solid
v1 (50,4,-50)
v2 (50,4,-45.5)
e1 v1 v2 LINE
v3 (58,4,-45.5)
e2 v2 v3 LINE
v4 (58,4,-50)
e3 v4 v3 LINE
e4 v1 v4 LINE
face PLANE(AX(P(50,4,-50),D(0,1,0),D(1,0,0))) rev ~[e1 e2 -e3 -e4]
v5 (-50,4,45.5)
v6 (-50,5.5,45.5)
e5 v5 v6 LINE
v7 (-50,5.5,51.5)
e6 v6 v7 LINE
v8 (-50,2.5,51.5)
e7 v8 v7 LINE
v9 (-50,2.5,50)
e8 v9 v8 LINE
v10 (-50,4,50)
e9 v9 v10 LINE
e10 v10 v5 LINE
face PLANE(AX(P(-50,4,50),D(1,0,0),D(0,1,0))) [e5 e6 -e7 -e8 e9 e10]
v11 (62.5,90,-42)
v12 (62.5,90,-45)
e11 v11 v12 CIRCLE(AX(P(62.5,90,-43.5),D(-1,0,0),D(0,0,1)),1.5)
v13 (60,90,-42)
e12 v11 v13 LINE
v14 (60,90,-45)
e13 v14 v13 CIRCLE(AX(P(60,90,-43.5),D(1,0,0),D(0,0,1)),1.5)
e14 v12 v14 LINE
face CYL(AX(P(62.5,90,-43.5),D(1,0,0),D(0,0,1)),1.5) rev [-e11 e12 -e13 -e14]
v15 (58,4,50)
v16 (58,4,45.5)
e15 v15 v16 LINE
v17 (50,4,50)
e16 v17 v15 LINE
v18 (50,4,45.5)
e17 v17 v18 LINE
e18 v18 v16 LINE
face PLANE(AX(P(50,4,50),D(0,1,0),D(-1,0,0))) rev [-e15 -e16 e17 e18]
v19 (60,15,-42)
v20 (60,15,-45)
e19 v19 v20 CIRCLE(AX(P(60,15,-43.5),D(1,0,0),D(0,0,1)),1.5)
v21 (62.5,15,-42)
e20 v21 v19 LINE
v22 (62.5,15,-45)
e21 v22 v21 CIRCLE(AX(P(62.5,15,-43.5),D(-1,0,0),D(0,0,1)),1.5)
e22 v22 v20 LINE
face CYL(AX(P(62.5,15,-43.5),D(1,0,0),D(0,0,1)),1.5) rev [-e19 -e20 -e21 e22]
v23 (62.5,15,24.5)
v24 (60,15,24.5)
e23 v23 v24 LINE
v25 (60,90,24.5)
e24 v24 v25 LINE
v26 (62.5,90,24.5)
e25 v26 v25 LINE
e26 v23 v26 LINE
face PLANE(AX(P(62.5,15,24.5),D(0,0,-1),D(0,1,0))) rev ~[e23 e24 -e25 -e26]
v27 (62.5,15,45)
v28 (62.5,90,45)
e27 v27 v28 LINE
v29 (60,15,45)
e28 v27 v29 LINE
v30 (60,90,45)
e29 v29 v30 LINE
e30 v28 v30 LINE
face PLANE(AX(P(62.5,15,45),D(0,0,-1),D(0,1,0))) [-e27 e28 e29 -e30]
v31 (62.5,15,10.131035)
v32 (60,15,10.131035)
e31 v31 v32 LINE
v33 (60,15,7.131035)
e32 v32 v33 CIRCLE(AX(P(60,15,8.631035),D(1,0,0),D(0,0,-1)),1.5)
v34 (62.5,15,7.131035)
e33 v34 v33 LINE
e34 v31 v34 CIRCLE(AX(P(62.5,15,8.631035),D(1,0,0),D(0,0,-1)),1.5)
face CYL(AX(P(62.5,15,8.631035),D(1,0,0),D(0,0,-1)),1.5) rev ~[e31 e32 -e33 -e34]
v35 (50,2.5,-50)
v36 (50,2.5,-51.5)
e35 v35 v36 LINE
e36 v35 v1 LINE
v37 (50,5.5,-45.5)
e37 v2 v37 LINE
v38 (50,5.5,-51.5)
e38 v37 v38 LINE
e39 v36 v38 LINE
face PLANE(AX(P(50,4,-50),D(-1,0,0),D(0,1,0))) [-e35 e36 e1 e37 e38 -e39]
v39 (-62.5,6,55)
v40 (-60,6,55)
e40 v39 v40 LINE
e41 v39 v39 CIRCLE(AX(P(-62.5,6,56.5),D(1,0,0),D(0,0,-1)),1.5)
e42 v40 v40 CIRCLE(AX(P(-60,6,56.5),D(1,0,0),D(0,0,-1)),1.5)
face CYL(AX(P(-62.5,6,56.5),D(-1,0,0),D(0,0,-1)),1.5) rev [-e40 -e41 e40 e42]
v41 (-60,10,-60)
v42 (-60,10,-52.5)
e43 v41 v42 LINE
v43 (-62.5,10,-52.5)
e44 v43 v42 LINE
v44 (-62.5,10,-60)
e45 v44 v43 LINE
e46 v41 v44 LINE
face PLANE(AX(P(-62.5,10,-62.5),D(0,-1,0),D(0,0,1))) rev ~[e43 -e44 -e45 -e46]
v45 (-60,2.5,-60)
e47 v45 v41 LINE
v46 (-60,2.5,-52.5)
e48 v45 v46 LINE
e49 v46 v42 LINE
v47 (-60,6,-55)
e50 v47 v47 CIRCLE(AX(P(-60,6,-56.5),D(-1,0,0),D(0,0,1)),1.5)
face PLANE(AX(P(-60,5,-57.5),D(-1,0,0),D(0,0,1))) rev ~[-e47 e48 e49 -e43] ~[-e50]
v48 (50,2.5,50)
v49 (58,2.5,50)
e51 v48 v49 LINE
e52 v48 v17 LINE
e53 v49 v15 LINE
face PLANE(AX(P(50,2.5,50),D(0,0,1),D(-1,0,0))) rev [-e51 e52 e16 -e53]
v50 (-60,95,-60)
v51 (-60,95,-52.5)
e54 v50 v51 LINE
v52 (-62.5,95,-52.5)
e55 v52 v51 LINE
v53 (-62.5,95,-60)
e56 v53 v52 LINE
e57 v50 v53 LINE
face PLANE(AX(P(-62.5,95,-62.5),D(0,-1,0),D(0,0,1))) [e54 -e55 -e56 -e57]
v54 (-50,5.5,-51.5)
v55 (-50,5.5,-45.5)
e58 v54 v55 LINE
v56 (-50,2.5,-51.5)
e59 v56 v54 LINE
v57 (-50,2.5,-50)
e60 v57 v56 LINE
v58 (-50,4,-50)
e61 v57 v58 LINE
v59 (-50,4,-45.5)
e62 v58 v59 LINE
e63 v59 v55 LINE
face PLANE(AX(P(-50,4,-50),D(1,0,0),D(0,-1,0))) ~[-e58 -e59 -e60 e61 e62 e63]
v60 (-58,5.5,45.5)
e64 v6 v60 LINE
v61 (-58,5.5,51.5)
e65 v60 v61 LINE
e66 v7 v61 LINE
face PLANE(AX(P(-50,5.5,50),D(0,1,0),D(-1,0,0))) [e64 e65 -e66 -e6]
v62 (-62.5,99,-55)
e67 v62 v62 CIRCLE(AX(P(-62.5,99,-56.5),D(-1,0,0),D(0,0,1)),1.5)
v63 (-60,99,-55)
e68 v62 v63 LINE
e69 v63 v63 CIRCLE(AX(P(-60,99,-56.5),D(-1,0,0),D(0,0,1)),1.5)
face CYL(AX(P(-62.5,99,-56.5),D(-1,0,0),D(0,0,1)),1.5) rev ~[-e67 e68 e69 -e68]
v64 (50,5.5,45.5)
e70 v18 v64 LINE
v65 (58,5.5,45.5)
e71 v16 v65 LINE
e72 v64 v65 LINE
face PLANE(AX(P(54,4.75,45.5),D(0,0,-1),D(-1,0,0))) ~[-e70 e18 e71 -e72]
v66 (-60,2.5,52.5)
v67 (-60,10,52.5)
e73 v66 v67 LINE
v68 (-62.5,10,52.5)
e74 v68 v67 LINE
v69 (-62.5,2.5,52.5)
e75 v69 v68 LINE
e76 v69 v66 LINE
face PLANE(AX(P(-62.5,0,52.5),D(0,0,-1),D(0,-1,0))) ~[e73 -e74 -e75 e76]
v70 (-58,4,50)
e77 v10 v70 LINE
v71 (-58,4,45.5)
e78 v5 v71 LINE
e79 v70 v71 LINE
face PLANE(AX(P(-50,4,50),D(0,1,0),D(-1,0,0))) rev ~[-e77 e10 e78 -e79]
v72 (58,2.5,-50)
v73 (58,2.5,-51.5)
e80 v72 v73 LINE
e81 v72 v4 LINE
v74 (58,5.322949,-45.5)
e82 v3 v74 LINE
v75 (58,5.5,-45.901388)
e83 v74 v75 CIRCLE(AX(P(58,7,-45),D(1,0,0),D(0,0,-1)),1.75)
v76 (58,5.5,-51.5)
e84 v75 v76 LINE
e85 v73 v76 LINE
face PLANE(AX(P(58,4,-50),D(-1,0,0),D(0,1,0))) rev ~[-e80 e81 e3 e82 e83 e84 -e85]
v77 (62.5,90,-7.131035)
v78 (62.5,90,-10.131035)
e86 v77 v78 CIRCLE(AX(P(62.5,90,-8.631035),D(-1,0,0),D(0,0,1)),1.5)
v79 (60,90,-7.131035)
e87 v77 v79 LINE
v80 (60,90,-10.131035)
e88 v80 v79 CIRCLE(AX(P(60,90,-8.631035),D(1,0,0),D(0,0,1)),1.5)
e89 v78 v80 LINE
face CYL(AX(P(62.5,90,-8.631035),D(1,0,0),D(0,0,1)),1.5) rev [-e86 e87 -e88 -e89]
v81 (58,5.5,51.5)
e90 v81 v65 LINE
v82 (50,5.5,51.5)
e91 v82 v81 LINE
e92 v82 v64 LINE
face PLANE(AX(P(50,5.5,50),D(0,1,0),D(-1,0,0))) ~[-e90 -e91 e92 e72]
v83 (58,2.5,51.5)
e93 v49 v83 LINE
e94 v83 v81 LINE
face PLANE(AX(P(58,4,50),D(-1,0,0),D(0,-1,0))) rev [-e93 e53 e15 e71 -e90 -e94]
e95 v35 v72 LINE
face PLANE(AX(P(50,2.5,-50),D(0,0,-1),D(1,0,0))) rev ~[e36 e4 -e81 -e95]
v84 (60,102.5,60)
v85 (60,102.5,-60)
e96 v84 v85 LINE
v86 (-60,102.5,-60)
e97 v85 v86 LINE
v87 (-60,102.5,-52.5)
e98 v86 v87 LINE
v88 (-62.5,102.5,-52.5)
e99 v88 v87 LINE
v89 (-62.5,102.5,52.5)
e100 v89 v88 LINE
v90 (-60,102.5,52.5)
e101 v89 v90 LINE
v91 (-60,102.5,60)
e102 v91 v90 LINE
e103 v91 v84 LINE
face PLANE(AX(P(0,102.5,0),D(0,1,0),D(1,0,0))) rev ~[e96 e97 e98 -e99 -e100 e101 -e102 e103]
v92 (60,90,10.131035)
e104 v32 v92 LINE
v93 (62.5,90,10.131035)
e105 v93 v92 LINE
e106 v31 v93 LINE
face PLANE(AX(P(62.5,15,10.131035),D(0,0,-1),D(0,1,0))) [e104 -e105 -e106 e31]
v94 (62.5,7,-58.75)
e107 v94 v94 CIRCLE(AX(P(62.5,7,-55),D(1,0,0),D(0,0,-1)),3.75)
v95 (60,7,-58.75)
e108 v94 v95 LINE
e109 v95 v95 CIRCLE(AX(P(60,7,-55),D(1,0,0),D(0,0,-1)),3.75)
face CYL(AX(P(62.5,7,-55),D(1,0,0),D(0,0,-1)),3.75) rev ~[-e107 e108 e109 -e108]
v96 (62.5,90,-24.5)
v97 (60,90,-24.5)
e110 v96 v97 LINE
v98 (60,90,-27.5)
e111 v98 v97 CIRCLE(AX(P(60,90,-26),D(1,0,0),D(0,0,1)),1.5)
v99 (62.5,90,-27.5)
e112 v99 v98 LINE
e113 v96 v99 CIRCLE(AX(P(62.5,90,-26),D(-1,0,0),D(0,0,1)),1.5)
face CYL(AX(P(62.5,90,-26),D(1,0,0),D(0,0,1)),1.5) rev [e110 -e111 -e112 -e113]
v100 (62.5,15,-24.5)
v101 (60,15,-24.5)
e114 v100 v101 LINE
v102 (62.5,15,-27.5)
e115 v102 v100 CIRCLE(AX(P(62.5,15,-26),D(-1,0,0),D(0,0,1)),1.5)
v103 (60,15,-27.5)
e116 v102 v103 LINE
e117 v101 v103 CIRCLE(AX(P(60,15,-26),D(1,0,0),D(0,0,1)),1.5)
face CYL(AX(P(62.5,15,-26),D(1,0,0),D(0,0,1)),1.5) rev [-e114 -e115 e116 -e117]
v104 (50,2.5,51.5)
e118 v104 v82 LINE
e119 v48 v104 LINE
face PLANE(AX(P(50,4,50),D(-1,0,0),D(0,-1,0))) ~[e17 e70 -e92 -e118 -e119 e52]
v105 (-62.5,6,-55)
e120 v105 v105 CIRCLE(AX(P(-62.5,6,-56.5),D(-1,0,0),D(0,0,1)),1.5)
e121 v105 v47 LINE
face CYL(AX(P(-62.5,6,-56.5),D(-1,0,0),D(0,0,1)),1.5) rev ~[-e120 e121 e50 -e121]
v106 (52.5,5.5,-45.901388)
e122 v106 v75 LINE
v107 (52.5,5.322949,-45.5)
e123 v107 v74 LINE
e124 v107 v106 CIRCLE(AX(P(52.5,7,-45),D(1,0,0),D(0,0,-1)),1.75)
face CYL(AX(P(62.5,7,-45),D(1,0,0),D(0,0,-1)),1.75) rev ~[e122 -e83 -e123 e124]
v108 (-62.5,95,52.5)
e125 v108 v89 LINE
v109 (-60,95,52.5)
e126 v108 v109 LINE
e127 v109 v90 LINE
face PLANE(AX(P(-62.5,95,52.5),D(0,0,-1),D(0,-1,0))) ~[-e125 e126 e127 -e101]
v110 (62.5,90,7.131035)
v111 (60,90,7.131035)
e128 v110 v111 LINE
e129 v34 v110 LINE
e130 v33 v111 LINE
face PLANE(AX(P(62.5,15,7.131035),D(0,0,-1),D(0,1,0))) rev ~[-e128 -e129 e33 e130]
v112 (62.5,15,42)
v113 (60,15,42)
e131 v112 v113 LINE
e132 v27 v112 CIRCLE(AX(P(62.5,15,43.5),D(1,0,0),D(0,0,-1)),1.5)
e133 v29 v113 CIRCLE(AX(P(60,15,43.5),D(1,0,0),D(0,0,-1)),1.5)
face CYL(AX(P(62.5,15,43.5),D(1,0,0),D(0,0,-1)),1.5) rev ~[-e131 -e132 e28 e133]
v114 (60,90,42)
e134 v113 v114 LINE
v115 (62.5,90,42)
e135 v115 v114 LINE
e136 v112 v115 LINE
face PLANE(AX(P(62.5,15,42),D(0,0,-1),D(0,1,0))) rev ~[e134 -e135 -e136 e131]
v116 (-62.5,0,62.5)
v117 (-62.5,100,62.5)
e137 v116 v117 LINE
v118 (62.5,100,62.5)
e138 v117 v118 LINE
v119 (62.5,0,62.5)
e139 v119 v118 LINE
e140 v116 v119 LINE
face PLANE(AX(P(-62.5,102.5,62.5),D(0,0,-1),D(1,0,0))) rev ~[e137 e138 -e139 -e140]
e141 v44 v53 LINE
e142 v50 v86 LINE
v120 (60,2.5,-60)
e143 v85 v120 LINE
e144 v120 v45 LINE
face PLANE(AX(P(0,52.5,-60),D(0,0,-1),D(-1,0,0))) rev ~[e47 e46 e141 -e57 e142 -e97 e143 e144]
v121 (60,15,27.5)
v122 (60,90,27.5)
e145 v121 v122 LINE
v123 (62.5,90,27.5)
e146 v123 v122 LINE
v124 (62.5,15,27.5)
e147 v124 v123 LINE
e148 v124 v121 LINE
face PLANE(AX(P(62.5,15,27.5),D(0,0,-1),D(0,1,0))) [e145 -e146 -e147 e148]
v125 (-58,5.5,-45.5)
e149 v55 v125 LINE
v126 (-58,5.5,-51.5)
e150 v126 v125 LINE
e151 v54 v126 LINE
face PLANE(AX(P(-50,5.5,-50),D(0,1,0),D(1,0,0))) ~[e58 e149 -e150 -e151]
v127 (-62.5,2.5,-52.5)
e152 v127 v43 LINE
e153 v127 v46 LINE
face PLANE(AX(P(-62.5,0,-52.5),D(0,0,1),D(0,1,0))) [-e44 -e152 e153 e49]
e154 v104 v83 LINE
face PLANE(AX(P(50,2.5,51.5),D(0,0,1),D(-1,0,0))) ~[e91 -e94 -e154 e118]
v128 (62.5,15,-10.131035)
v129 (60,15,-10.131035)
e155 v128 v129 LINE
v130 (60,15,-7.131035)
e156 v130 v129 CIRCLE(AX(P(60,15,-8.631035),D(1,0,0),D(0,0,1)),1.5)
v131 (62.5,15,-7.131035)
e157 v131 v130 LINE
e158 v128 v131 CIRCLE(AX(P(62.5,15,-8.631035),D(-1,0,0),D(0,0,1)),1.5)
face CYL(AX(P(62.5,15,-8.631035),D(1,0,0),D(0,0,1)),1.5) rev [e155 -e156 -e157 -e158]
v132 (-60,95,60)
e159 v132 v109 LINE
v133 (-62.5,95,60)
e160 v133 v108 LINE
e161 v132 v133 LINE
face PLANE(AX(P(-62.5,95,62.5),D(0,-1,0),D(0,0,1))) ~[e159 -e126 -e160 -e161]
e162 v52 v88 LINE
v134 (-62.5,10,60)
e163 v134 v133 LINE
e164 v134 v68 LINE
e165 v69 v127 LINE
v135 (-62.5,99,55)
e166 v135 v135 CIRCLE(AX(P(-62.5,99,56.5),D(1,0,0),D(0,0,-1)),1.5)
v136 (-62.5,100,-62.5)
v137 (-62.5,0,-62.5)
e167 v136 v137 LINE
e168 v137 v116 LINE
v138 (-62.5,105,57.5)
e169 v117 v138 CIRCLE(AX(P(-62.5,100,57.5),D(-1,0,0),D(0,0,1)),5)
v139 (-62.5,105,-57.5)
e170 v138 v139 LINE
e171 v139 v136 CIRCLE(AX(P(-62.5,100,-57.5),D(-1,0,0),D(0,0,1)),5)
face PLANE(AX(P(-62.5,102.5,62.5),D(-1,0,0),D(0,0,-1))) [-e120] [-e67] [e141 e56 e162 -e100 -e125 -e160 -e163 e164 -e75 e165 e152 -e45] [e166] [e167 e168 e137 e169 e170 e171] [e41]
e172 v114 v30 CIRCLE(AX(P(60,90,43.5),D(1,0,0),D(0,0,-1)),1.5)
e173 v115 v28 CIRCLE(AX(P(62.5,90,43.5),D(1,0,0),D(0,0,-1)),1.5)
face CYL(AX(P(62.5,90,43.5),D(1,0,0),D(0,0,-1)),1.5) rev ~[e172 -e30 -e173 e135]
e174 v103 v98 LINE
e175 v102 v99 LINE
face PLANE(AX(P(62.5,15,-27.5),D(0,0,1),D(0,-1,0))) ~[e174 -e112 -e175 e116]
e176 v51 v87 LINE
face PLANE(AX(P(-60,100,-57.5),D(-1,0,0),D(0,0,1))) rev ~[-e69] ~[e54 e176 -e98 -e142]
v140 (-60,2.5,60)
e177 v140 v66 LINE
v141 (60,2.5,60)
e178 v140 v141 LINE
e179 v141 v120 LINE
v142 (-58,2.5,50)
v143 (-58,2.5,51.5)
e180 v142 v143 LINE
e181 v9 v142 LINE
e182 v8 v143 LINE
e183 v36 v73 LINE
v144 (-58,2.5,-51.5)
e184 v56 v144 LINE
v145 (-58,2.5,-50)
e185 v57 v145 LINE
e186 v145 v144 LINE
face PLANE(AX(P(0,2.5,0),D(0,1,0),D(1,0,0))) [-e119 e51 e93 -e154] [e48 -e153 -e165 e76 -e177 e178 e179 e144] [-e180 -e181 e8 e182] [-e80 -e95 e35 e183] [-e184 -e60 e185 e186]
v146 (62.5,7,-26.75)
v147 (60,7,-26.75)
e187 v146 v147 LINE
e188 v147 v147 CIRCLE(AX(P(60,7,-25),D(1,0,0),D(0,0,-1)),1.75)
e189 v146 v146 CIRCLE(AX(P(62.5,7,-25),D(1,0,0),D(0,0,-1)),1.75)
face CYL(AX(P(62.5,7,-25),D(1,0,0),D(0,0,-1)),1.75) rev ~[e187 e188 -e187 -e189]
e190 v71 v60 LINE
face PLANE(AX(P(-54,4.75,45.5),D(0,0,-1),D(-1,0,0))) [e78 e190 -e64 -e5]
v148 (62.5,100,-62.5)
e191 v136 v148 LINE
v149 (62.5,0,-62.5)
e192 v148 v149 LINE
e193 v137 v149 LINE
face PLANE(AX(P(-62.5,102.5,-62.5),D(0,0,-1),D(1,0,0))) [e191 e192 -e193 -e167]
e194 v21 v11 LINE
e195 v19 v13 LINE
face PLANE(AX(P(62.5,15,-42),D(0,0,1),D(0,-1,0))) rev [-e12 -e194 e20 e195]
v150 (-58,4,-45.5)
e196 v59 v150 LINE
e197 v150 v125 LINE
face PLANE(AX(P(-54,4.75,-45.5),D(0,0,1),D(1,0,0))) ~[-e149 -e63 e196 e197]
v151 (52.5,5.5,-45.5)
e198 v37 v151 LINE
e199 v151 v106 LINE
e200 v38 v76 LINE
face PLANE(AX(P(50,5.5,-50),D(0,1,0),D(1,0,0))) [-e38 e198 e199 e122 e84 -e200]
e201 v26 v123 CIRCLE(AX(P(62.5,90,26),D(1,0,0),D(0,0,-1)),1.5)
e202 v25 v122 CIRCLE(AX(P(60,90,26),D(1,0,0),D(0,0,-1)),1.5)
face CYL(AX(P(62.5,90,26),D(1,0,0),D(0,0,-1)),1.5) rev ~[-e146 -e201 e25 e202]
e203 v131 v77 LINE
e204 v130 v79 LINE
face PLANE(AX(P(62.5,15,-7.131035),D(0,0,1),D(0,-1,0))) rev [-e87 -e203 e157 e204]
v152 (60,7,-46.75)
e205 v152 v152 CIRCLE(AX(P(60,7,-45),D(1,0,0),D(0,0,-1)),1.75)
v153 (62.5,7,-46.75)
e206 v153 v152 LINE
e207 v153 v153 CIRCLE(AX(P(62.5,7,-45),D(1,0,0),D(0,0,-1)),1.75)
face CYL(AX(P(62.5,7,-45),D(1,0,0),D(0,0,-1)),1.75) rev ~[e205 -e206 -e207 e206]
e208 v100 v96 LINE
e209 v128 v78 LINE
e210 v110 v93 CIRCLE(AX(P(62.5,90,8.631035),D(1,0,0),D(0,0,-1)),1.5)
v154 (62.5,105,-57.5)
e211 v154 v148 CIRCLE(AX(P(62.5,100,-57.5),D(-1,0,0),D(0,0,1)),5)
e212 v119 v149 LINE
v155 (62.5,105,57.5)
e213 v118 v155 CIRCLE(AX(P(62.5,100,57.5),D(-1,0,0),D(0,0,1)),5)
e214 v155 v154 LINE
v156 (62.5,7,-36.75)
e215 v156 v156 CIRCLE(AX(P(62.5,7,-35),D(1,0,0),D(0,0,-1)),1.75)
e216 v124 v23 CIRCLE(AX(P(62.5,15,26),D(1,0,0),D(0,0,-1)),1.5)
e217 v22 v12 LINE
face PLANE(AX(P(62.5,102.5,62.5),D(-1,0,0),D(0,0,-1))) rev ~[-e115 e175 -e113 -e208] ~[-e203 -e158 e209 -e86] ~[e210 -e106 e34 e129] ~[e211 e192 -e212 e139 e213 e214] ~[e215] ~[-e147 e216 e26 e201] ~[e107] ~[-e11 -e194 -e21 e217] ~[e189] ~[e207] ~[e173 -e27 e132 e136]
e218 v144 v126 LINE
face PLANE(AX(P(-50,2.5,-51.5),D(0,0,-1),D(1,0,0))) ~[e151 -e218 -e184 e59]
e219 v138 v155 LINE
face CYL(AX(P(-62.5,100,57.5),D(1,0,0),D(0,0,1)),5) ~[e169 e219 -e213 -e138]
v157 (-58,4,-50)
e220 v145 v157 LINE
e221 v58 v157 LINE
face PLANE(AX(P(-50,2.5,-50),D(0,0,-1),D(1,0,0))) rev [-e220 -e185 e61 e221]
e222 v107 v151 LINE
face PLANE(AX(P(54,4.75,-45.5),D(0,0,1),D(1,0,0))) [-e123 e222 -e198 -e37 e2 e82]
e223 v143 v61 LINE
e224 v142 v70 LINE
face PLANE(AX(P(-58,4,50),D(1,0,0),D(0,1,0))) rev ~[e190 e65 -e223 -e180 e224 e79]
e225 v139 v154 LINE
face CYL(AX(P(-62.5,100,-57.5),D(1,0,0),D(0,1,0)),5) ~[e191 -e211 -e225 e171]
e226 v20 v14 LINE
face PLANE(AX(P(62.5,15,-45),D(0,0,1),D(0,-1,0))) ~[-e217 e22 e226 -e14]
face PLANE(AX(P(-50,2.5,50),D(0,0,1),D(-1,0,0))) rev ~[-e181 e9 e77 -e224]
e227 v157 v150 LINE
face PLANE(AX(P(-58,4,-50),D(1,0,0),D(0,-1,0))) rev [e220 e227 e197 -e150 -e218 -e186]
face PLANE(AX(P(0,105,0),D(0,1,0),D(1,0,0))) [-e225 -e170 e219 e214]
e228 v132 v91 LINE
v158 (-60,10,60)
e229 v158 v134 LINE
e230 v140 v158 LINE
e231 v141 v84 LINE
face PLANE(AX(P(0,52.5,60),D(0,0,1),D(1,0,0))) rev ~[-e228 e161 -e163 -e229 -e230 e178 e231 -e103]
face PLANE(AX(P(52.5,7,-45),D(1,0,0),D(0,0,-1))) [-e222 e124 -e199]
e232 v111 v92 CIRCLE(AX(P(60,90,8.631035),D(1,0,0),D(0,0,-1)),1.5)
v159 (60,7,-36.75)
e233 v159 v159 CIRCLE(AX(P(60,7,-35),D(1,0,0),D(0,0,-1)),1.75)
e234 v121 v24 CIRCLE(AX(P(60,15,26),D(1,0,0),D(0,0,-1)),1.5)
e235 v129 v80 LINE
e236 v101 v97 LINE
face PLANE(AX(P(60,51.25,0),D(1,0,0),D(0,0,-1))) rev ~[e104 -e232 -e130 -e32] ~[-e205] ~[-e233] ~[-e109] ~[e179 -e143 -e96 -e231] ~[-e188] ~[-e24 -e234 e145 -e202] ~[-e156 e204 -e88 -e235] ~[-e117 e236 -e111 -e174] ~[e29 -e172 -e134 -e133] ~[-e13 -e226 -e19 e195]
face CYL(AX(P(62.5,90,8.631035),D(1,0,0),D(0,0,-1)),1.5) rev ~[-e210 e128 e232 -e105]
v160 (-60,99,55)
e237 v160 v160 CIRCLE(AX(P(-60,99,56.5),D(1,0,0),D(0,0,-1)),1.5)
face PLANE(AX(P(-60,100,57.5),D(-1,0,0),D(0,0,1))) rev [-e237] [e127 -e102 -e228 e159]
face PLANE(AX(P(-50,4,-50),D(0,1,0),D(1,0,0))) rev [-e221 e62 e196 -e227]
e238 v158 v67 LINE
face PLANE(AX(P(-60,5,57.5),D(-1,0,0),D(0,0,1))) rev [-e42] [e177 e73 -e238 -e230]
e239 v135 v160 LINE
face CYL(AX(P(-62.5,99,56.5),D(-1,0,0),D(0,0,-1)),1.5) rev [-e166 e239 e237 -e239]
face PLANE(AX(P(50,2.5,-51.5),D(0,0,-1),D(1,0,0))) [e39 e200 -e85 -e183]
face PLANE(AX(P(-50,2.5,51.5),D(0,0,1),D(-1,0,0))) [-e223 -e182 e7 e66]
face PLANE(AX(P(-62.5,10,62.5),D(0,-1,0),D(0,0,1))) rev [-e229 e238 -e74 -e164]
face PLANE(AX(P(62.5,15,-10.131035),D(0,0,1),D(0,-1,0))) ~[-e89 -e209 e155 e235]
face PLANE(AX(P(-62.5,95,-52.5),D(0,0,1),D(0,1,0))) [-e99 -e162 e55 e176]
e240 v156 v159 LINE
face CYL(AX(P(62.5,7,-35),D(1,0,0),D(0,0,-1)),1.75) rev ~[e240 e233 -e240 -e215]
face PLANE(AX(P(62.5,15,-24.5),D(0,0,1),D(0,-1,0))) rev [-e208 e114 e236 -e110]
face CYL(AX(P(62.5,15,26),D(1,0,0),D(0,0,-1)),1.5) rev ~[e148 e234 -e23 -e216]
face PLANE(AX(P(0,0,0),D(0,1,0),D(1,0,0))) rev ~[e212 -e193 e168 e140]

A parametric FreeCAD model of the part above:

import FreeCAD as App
import Part
import Sketcher
from FreeCAD import Vector
Q = App.Units.Quantity


def edges_at(feature, points):
    """Names of the edges that pass closest to the given points."""
    edges = feature.Shape.Edges
    near = lambda p: min(range(len(edges)), key=lambda i: edges[i].distToShape(Part.Vertex(*p))[0])
    return sorted({f"Edge{near(p) + 1}" for p in points})


def add_polygon(sketch, points):
    """Adds a closed chain of lines whose ends are joined by coincident constraints."""
    first, n = sketch.GeometryCount, len(points)
    for a, b in zip(points, points[1:] + points[:1]):
        sketch.addGeometry(Part.LineSegment(App.Vector(*a, 0), App.Vector(*b, 0)), False)
    for i in range(n):
        sketch.addConstraint(Sketcher.Constraint("Coincident", first + i, 2, first + (i + 1) % n, 1))

doc = App.newDocument("Part")
body = doc.addObject("PartDesign::Body", "Body")

# Sketch on XZ plane
sketch1 = doc.addObject("Sketcher::SketchObject", "Sketch")
body.addObject(sketch1)
sketch1.AttachmentSupport = (doc.XZ_Plane, [""])
sketch1.MapMode = "FlatFace"
add_polygon(sketch1, [(-62, -62), (-62, 62), (62, 62), (62, -62)])  # lines 0-3
sketch1.addConstraint(Sketcher.Constraint("Vertical", 0))
sketch1.addConstraint(Sketcher.Constraint("Horizontal", 1))
sketch1.addConstraint(Sketcher.Constraint("Vertical", 2))
sketch1.addConstraint(Sketcher.Constraint("Horizontal", 3))
sketch1.addConstraint(Sketcher.Constraint("Symmetric", 0, 2, 2, 2, -1, 1))
sketch1.addConstraint(Sketcher.Constraint("Equal", 3, 0))
sketch1.addConstraint(Sketcher.Constraint("DistanceX", 1, 1, 1, 2, Q("125 mm")))
pad1 = doc.addObject("PartDesign::Pad", "Pad")
body.addObject(pad1)
pad1.Profile = sketch1
pad1.Length = 2.5
pad1.Reversed = True

# Sketch on XY plane
sketch2 = doc.addObject("Sketcher::SketchObject", "Sketch001")
body.addObject(sketch2)
sketch2.AttachmentSupport = (doc.XY_Plane, [""])
sketch2.MapMode = "FlatFace"
sketch2.AttachmentOffset = App.Placement(Vector(0, 0, -62.5), App.Rotation())
add_polygon(sketch2, [(62, 102), (62, 2), (-62, 2), (-62, 102)])  # lines 0-3
sketch2.addConstraint(Sketcher.Constraint("Vertical", 0))
sketch2.addConstraint(Sketcher.Constraint("Horizontal", 1))
sketch2.addConstraint(Sketcher.Constraint("Vertical", 2))
sketch2.addConstraint(Sketcher.Constraint("Horizontal", 3))
sketch2.addConstraint(Sketcher.Constraint("DistanceX", 1, 2, 1, 1, Q("125 mm")))
sketch2.addConstraint(Sketcher.Constraint("DistanceY", 0, 2, 0, 1, Q("100 mm")))
sketch2.addConstraint(Sketcher.Constraint("DistanceX", -1, 1, 0, 2, Q("62.5 mm")))
sketch2.addConstraint(Sketcher.Constraint("DistanceY", -1, 1, 0, 2, Q("2.5 mm")))
pad2 = doc.addObject("PartDesign::Pad", "Pad001")
body.addObject(pad2)
pad2.Profile = sketch2
pad2.Length = 2.5

# Sketch on XY plane
sketch3 = doc.addObject("Sketcher::SketchObject", "Sketch002")
body.addObject(sketch3)
sketch3.AttachmentSupport = (doc.XY_Plane, [""])
sketch3.MapMode = "FlatFace"
sketch3.AttachmentOffset = App.Placement(Vector(0, 0, 62.5), App.Rotation())
add_polygon(sketch3, [(-62, 102), (-62, 2), (62, 2), (62, 102)])  # lines 0-3
sketch3.addConstraint(Sketcher.Constraint("Vertical", 0))
sketch3.addConstraint(Sketcher.Constraint("Horizontal", 1))
sketch3.addConstraint(Sketcher.Constraint("Vertical", 2))
sketch3.addConstraint(Sketcher.Constraint("Horizontal", 3))
sketch3.addConstraint(Sketcher.Constraint("DistanceX", 1, 1, 1, 2, Q("125 mm")))
sketch3.addConstraint(Sketcher.Constraint("DistanceY", 0, 2, 0, 1, Q("100 mm")))
sketch3.addConstraint(Sketcher.Constraint("DistanceX", 0, 2, -1, 1, Q("62.5 mm")))
sketch3.addConstraint(Sketcher.Constraint("DistanceY", -1, 1, 0, 2, Q("2.5 mm")))
pad3 = doc.addObject("PartDesign::Pad", "Pad002")
body.addObject(pad3)
pad3.Profile = sketch3
pad3.Length = 2.5
pad3.Reversed = True

# Sketch on YZ plane
sketch4 = doc.addObject("Sketcher::SketchObject", "Sketch003")
body.addObject(sketch4)
sketch4.AttachmentSupport = (doc.YZ_Plane, [""])
sketch4.MapMode = "FlatFace"
sketch4.AttachmentOffset = App.Placement(Vector(0, 0, 62.5), App.Rotation())
add_polygon(sketch4, [(102, 62), (0, 62), (0, -62), (102, -62)])  # lines 0-3
sketch4.addConstraint(Sketcher.Constraint("Horizontal", 0))
sketch4.addConstraint(Sketcher.Constraint("Vertical", 1))
sketch4.addConstraint(Sketcher.Constraint("Horizontal", 2))
sketch4.addConstraint(Sketcher.Constraint("Vertical", 3))
sketch4.addConstraint(Sketcher.Constraint("Symmetric", 0, 2, 1, 2, -1, 1))
sketch4.addConstraint(Sketcher.Constraint("DistanceY", 1, 2, 1, 1, Q("125 mm")))
sketch4.addConstraint(Sketcher.Constraint("DistanceX", 0, 2, 0, 1, Q("102.5 mm")))
pad4 = doc.addObject("PartDesign::Pad", "Pad003")
body.addObject(pad4)
pad4.Profile = sketch4
pad4.Length = 2.5
pad4.Reversed = True

# Sketch on XZ plane
sketch5 = doc.addObject("Sketcher::SketchObject", "Sketch004")
body.addObject(sketch5)
sketch5.AttachmentSupport = (doc.XZ_Plane, [""])
sketch5.MapMode = "FlatFace"
sketch5.AttachmentOffset = App.Placement(Vector(0, 0, -2.5), App.Rotation())
add_polygon(sketch5, [(50, -51.5), (50, -50), (58, -50), (58, -51.5)])  # lines 0-3
sketch5.addConstraint(Sketcher.Constraint("Vertical", 0))
sketch5.addConstraint(Sketcher.Constraint("Horizontal", 1))
sketch5.addConstraint(Sketcher.Constraint("Vertical", 2))
sketch5.addConstraint(Sketcher.Constraint("Horizontal", 3))
sketch5.addConstraint(Sketcher.Constraint("DistanceX", 1, 1, 1, 2, Q("8 mm")))
sketch5.addConstraint(Sketcher.Constraint("DistanceY", 0, 1, 0, 2, Q("1.5 mm")))
sketch5.addConstraint(Sketcher.Constraint("DistanceX", -1, 1, 0, 2, Q("50 mm")))
sketch5.addConstraint(Sketcher.Constraint("DistanceY", 0, 2, -1, 1, Q("50 mm")))
pad5 = doc.addObject("PartDesign::Pad", "Pad004")
body.addObject(pad5)
pad5.Profile = sketch5
pad5.Length = 3
pad5.Reversed = True
doc.recompute()

mirrored = doc.addObject("PartDesign::Mirrored", "Mirrored")
body.addObject(mirrored)
mirrored.Originals = [pad5]
mirrored.MirrorPlane = (doc.XY_Plane, [""])
body.Tip = mirrored

# Sketch on XY plane
sketch6 = doc.addObject("Sketcher::SketchObject", "Sketch005")
body.addObject(sketch6)
sketch6.AttachmentSupport = (doc.XY_Plane, [""])
sketch6.MapMode = "FlatFace"
sketch6.AttachmentOffset = App.Placement(Vector(0, 0, -50), App.Rotation())
add_polygon(sketch6, [(50, 5.5), (50, 4), (58, 4), (58, 5.5)])  # lines 0-3
sketch6.addConstraint(Sketcher.Constraint("Vertical", 0))
sketch6.addConstraint(Sketcher.Constraint("Horizontal", 1))
sketch6.addConstraint(Sketcher.Constraint("Vertical", 2))
sketch6.addConstraint(Sketcher.Constraint("Horizontal", 3))
sketch6.addConstraint(Sketcher.Constraint("DistanceX", 1, 1, 1, 2, Q("8 mm")))
sketch6.addConstraint(Sketcher.Constraint("DistanceY", 0, 2, 0, 1, Q("1.5 mm")))
sketch6.addConstraint(Sketcher.Constraint("DistanceX", -1, 1, 0, 2, Q("50 mm")))
sketch6.addConstraint(Sketcher.Constraint("DistanceY", -1, 1, 0, 2, Q("4 mm")))
pad6 = doc.addObject("PartDesign::Pad", "Pad005")
body.addObject(pad6)
pad6.Profile = sketch6
pad6.Length = 4.5
doc.recompute()

mirrored2 = doc.addObject("PartDesign::Mirrored", "Mirrored001")
body.addObject(mirrored2)
mirrored2.Originals = [pad6]
mirrored2.MirrorPlane = (doc.XY_Plane, [""])
body.Tip = mirrored2
doc.recompute()

mirrored3 = doc.addObject("PartDesign::Mirrored", "Mirrored002")
body.addObject(mirrored3)
mirrored3.Originals = [pad5]
mirrored3.MirrorPlane = (doc.YZ_Plane, [""])
body.Tip = mirrored3
doc.recompute()

mirrored4 = doc.addObject("PartDesign::Mirrored", "Mirrored003")
body.addObject(mirrored4)
mirrored4.Originals = [pad6]
mirrored4.MirrorPlane = (doc.YZ_Plane, [""])
body.Tip = mirrored4

# Sketch on XZ plane
sketch7 = doc.addObject("Sketcher::SketchObject", "Sketch006")
body.addObject(sketch7)
sketch7.AttachmentSupport = (doc.XZ_Plane, [""])
sketch7.MapMode = "FlatFace"
sketch7.AttachmentOffset = App.Placement(Vector(0, 0, -2.5), App.Rotation())
add_polygon(sketch7, [(-50, 51.5), (-50, 50), (-58, 50), (-58, 51.5)])  # lines 0-3
sketch7.addConstraint(Sketcher.Constraint("Vertical", 0))
sketch7.addConstraint(Sketcher.Constraint("Horizontal", 1))
sketch7.addConstraint(Sketcher.Constraint("Vertical", 2))
sketch7.addConstraint(Sketcher.Constraint("Horizontal", 3))
sketch7.addConstraint(Sketcher.Constraint("DistanceX", 1, 2, 1, 1, Q("8 mm")))
sketch7.addConstraint(Sketcher.Constraint("DistanceY", 0, 2, 0, 1, Q("1.5 mm")))
sketch7.addConstraint(Sketcher.Constraint("DistanceX", 0, 2, -1, 1, Q("50 mm")))
sketch7.addConstraint(Sketcher.Constraint("DistanceY", -1, 1, 0, 2, Q("50 mm")))
pad7 = doc.addObject("PartDesign::Pad", "Pad006")
body.addObject(pad7)
pad7.Profile = sketch7
pad7.Length = 3
pad7.Reversed = True

# Sketch on XZ plane
sketch8 = doc.addObject("Sketcher::SketchObject", "Sketch007")
body.addObject(sketch8)
sketch8.AttachmentSupport = (doc.XZ_Plane, [""])
sketch8.MapMode = "FlatFace"
sketch8.AttachmentOffset = App.Placement(Vector(0, 0, -2.5), App.Rotation())
add_polygon(sketch8, [(50, 50), (50, 51.5), (58, 51.5), (58, 50)])  # lines 0-3
sketch8.addConstraint(Sketcher.Constraint("Vertical", 0))
sketch8.addConstraint(Sketcher.Constraint("Horizontal", 1))
sketch8.addConstraint(Sketcher.Constraint("Vertical", 2))
sketch8.addConstraint(Sketcher.Constraint("Horizontal", 3))
sketch8.addConstraint(Sketcher.Constraint("DistanceX", 1, 1, 1, 2, Q("8 mm")))
sketch8.addConstraint(Sketcher.Constraint("DistanceY", 0, 1, 0, 2, Q("1.5 mm")))
sketch8.addConstraint(Sketcher.Constraint("DistanceX", -1, 1, 0, 2, Q("50 mm")))
sketch8.addConstraint(Sketcher.Constraint("DistanceY", -1, 1, 2, 2, Q("50 mm")))
pad8 = doc.addObject("PartDesign::Pad", "Pad007")
body.addObject(pad8)
pad8.Profile = sketch8
pad8.Length = 3
pad8.Reversed = True

# Sketch on XY plane
sketch9 = doc.addObject("Sketcher::SketchObject", "Sketch008")
body.addObject(sketch9)
sketch9.AttachmentSupport = (doc.XY_Plane, [""])
sketch9.MapMode = "FlatFace"
sketch9.AttachmentOffset = App.Placement(Vector(0, 0, 50), App.Rotation())
add_polygon(sketch9, [(-50, 5.5), (-50, 4), (-58, 4), (-58, 5.5)])  # lines 0-3
sketch9.addConstraint(Sketcher.Constraint("Vertical", 0))
sketch9.addConstraint(Sketcher.Constraint("Horizontal", 1))
sketch9.addConstraint(Sketcher.Constraint("Vertical", 2))
sketch9.addConstraint(Sketcher.Constraint("Horizontal", 3))
sketch9.addConstraint(Sketcher.Constraint("DistanceX", 1, 2, 1, 1, Q("8 mm")))
sketch9.addConstraint(Sketcher.Constraint("DistanceY", 0, 2, 0, 1, Q("1.5 mm")))
sketch9.addConstraint(Sketcher.Constraint("DistanceX", 0, 2, -1, 1, Q("50 mm")))
sketch9.addConstraint(Sketcher.Constraint("DistanceY", -1, 1, 0, 2, Q("4 mm")))
pad9 = doc.addObject("PartDesign::Pad", "Pad008")
body.addObject(pad9)
pad9.Profile = sketch9
pad9.Length = 4.5
pad9.Reversed = True

# Sketch on XY plane
sketch10 = doc.addObject("Sketcher::SketchObject", "Sketch009")
body.addObject(sketch10)
sketch10.AttachmentSupport = (doc.XY_Plane, [""])
sketch10.MapMode = "FlatFace"
sketch10.AttachmentOffset = App.Placement(Vector(0, 0, 50), App.Rotation())
add_polygon(sketch10, [(50, 4), (50, 5.5), (58, 5.5), (58, 4)])  # lines 0-3
sketch10.addConstraint(Sketcher.Constraint("Vertical", 0))
sketch10.addConstraint(Sketcher.Constraint("Horizontal", 1))
sketch10.addConstraint(Sketcher.Constraint("Vertical", 2))
sketch10.addConstraint(Sketcher.Constraint("Horizontal", 3))
sketch10.addConstraint(Sketcher.Constraint("DistanceX", 1, 1, 1, 2, Q("8 mm")))
sketch10.addConstraint(Sketcher.Constraint("DistanceY", 0, 1, 0, 2, Q("1.5 mm")))
sketch10.addConstraint(Sketcher.Constraint("DistanceX", -1, 1, 0, 2, Q("50 mm")))
sketch10.addConstraint(Sketcher.Constraint("DistanceY", -1, 1, 2, 2, Q("4 mm")))
pad10 = doc.addObject("PartDesign::Pad", "Pad009")
body.addObject(pad10)
pad10.Profile = sketch10
pad10.Length = 4.5
pad10.Reversed = True

# Sketch on YZ plane
sketch11 = doc.addObject("Sketcher::SketchObject", "Sketch010")
body.addObject(sketch11)
sketch11.AttachmentSupport = (doc.YZ_Plane, [""])
sketch11.MapMode = "FlatFace"
sketch11.AttachmentOffset = App.Placement(Vector(0, 0, 62.5), App.Rotation())
add_polygon(sketch11, [(90, 10.1), (15, 10.1), (15, 7.1), (90, 7.1)])  # lines 0-3
sketch11.addConstraint(Sketcher.Constraint("Horizontal", 0))
sketch11.addConstraint(Sketcher.Constraint("Vertical", 1))
sketch11.addConstraint(Sketcher.Constraint("Horizontal", 2))
sketch11.addConstraint(Sketcher.Constraint("Vertical", 3))
sketch11.addConstraint(Sketcher.Constraint("DistanceX", 0, 2, 0, 1, Q("75 mm")))
sketch11.addConstraint(Sketcher.Constraint("DistanceY", 1, 2, 1, 1, Q("3 mm")))
sketch11.addConstraint(Sketcher.Constraint("DistanceX", -1, 1, 0, 2, Q("15 mm")))
sketch11.addConstraint(Sketcher.Constraint("DistanceY", -1, 1, 0, 2, Q("10.131035 mm")))
pocket1 = doc.addObject("PartDesign::Pocket", "Pocket")
body.addObject(pocket1)
pocket1.Profile = sketch11
pocket1.Length = 4.5

# Sketch on YZ plane
sketch12 = doc.addObject("Sketcher::SketchObject", "Sketch011")
body.addObject(sketch12)
sketch12.AttachmentSupport = (doc.YZ_Plane, [""])
sketch12.MapMode = "FlatFace"
sketch12.AttachmentOffset = App.Placement(Vector(0, 0, 62.5), App.Rotation())
add_polygon(sketch12, [(90, 45), (15, 45), (15, 42), (90, 42)])  # lines 0-3
sketch12.addConstraint(Sketcher.Constraint("Horizontal", 0))
sketch12.addConstraint(Sketcher.Constraint("Vertical", 1))
sketch12.addConstraint(Sketcher.Constraint("Horizontal", 2))
sketch12.addConstraint(Sketcher.Constraint("Vertical", 3))
sketch12.addConstraint(Sketcher.Constraint("DistanceX", 0, 2, 0, 1, Q("75 mm")))
sketch12.addConstraint(Sketcher.Constraint("DistanceY", 1, 2, 1, 1, Q("3 mm")))
sketch12.addConstraint(Sketcher.Constraint("DistanceX", -1, 1, 0, 2, Q("15 mm")))
sketch12.addConstraint(Sketcher.Constraint("DistanceY", -1, 1, 0, 2, Q("45 mm")))
pocket2 = doc.addObject("PartDesign::Pocket", "Pocket001")
body.addObject(pocket2)
pocket2.Profile = sketch12
pocket2.Length = 4.5

# Sketch on YZ plane
sketch13 = doc.addObject("Sketcher::SketchObject", "Sketch012")
body.addObject(sketch13)
sketch13.AttachmentSupport = (doc.YZ_Plane, [""])
sketch13.MapMode = "FlatFace"
sketch13.AttachmentOffset = App.Placement(Vector(0, 0, 62.5), App.Rotation())
add_polygon(sketch13, [(90, 27.5), (15, 27.5), (15, 24.5), (90, 24.5)])  # lines 0-3
sketch13.addConstraint(Sketcher.Constraint("Horizontal", 0))
sketch13.addConstraint(Sketcher.Constraint("Vertical", 1))
sketch13.addConstraint(Sketcher.Constraint("Horizontal", 2))
sketch13.addConstraint(Sketcher.Constraint("Vertical", 3))
sketch13.addConstraint(Sketcher.Constraint("DistanceX", 0, 2, 0, 1, Q("75 mm")))
sketch13.addConstraint(Sketcher.Constraint("DistanceY", 1, 2, 1, 1, Q("3 mm")))
sketch13.addConstraint(Sketcher.Constraint("DistanceX", -1, 1, 0, 2, Q("15 mm")))
sketch13.addConstraint(Sketcher.Constraint("DistanceY", -1, 1, 0, 2, Q("27.5 mm")))
pocket3 = doc.addObject("PartDesign::Pocket", "Pocket002")
body.addObject(pocket3)
pocket3.Profile = sketch13
pocket3.Length = 4.5
doc.recompute()

mirrored5 = doc.addObject("PartDesign::Mirrored", "Mirrored004")
body.addObject(mirrored5)
mirrored5.Originals = [pocket3]
mirrored5.MirrorPlane = (doc.XY_Plane, [""])
body.Tip = mirrored5
doc.recompute()

mirrored6 = doc.addObject("PartDesign::Mirrored", "Mirrored005")
body.addObject(mirrored6)
mirrored6.Originals = [pocket2]
mirrored6.MirrorPlane = (doc.XY_Plane, [""])
body.Tip = mirrored6
doc.recompute()

mirrored7 = doc.addObject("PartDesign::Mirrored", "Mirrored006")
body.addObject(mirrored7)
mirrored7.Originals = [pocket1]
mirrored7.MirrorPlane = (doc.XY_Plane, [""])
body.Tip = mirrored7

# Sketch on YZ plane
sketch14 = doc.addObject("Sketcher::SketchObject", "Sketch013")
body.addObject(sketch14)
sketch14.AttachmentSupport = (doc.YZ_Plane, [""])
sketch14.MapMode = "FlatFace"
sketch14.AttachmentOffset = App.Placement(Vector(0, 0, 62.5), App.Rotation())
sketch14.addGeometry(Part.Circle(Vector(90, 8.6, 0), Vector(0, 0, 1), 1.5), False)
sketch14.addConstraint(Sketcher.Constraint("Diameter", 0, Q("3 mm")))
sketch14.addConstraint(Sketcher.Constraint("DistanceX", -1, 1, 0, 3, Q("90 mm")))
sketch14.addConstraint(Sketcher.Constraint("DistanceY", -1, 1, 0, 3, Q("8.631035 mm")))
pocket4 = doc.addObject("PartDesign::Pocket", "Pocket003")
body.addObject(pocket4)
pocket4.Profile = sketch14
pocket4.Length = 4.5

# Sketch on YZ plane
sketch15 = doc.addObject("Sketcher::SketchObject", "Sketch014")
body.addObject(sketch15)
sketch15.AttachmentSupport = (doc.YZ_Plane, [""])
sketch15.MapMode = "FlatFace"
sketch15.AttachmentOffset = App.Placement(Vector(0, 0, 62.5), App.Rotation())
sketch15.addGeometry(Part.Circle(Vector(15, 8.6, 0), Vector(0, 0, 1), 1.5), False)
sketch15.addConstraint(Sketcher.Constraint("Diameter", 0, Q("3 mm")))
sketch15.addConstraint(Sketcher.Constraint("DistanceX", -1, 1, 0, 3, Q("15 mm")))
sketch15.addConstraint(Sketcher.Constraint("DistanceY", -1, 1, 0, 3, Q("8.631035 mm")))
pocket5 = doc.addObject("PartDesign::Pocket", "Pocket004")
body.addObject(pocket5)
pocket5.Profile = sketch15
pocket5.Length = 4.5

# Sketch on YZ plane
sketch16 = doc.addObject("Sketcher::SketchObject", "Sketch015")
body.addObject(sketch16)
sketch16.AttachmentSupport = (doc.YZ_Plane, [""])
sketch16.MapMode = "FlatFace"
sketch16.AttachmentOffset = App.Placement(Vector(0, 0, 62.5), App.Rotation())
sketch16.addGeometry(Part.Circle(Vector(15, 26, 0), Vector(0, 0, 1), 1.5), False)
sketch16.addConstraint(Sketcher.Constraint("Diameter", 0, Q("3 mm")))
sketch16.addConstraint(Sketcher.Constraint("DistanceX", -1, 1, 0, 3, Q("15 mm")))
sketch16.addConstraint(Sketcher.Constraint("DistanceY", -1, 1, 0, 3, Q("26 mm")))
pocket6 = doc.addObject("PartDesign::Pocket", "Pocket005")
body.addObject(pocket6)
pocket6.Profile = sketch16
pocket6.Length = 4.5

# Sketch on YZ plane
sketch17 = doc.addObject("Sketcher::SketchObject", "Sketch016")
body.addObject(sketch17)
sketch17.AttachmentSupport = (doc.YZ_Plane, [""])
sketch17.MapMode = "FlatFace"
sketch17.AttachmentOffset = App.Placement(Vector(0, 0, 62.5), App.Rotation())
sketch17.addGeometry(Part.Circle(Vector(15, 43.5, 0), Vector(0, 0, 1), 1.5), False)
sketch17.addConstraint(Sketcher.Constraint("Diameter", 0, Q("3 mm")))
sketch17.addConstraint(Sketcher.Constraint("DistanceX", -1, 1, 0, 3, Q("15 mm")))
sketch17.addConstraint(Sketcher.Constraint("DistanceY", -1, 1, 0, 3, Q("43.5 mm")))
pocket7 = doc.addObject("PartDesign::Pocket", "Pocket006")
body.addObject(pocket7)
pocket7.Profile = sketch17
pocket7.Length = 4.5
doc.recompute()

mirrored8 = doc.addObject("PartDesign::Mirrored", "Mirrored007")
body.addObject(mirrored8)
mirrored8.Originals = [pocket5]
mirrored8.MirrorPlane = (doc.XY_Plane, [""])
body.Tip = mirrored8
doc.recompute()

mirrored9 = doc.addObject("PartDesign::Mirrored", "Mirrored008")
body.addObject(mirrored9)
mirrored9.Originals = [pocket7]
mirrored9.MirrorPlane = (doc.XY_Plane, [""])
body.Tip = mirrored9
doc.recompute()

mirrored10 = doc.addObject("PartDesign::Mirrored", "Mirrored009")
body.addObject(mirrored10)
mirrored10.Originals = [pocket6]
mirrored10.MirrorPlane = (doc.XY_Plane, [""])
body.Tip = mirrored10

# Sketch on YZ plane
sketch18 = doc.addObject("Sketcher::SketchObject", "Sketch017")
body.addObject(sketch18)
sketch18.AttachmentSupport = (doc.YZ_Plane, [""])
sketch18.MapMode = "FlatFace"
sketch18.AttachmentOffset = App.Placement(Vector(0, 0, 62.5), App.Rotation())
sketch18.addGeometry(Part.Circle(Vector(90, 43.5, 0), Vector(0, 0, 1), 1.5), False)
sketch18.addConstraint(Sketcher.Constraint("Diameter", 0, Q("3 mm")))
sketch18.addConstraint(Sketcher.Constraint("DistanceX", -1, 1, 0, 3, Q("90 mm")))
sketch18.addConstraint(Sketcher.Constraint("DistanceY", -1, 1, 0, 3, Q("43.5 mm")))
pocket8 = doc.addObject("PartDesign::Pocket", "Pocket007")
body.addObject(pocket8)
pocket8.Profile = sketch18
pocket8.Length = 4.5

# Sketch on YZ plane
sketch19 = doc.addObject("Sketcher::SketchObject", "Sketch018")
body.addObject(sketch19)
sketch19.AttachmentSupport = (doc.YZ_Plane, [""])
sketch19.MapMode = "FlatFace"
sketch19.AttachmentOffset = App.Placement(Vector(0, 0, 62.5), App.Rotation())
sketch19.addGeometry(Part.Circle(Vector(90, 26, 0), Vector(0, 0, 1), 1.5), False)
sketch19.addConstraint(Sketcher.Constraint("Diameter", 0, Q("3 mm")))
sketch19.addConstraint(Sketcher.Constraint("DistanceX", -1, 1, 0, 3, Q("90 mm")))
sketch19.addConstraint(Sketcher.Constraint("DistanceY", -1, 1, 0, 3, Q("26 mm")))
pocket9 = doc.addObject("PartDesign::Pocket", "Pocket008")
body.addObject(pocket9)
pocket9.Profile = sketch19
pocket9.Length = 4.5
doc.recompute()

mirrored11 = doc.addObject("PartDesign::Mirrored", "Mirrored010")
body.addObject(mirrored11)
mirrored11.Originals = [pocket8]
mirrored11.MirrorPlane = (doc.XY_Plane, [""])
body.Tip = mirrored11
doc.recompute()

mirrored12 = doc.addObject("PartDesign::Mirrored", "Mirrored011")
body.addObject(mirrored12)
mirrored12.Originals = [pocket4]
mirrored12.MirrorPlane = (doc.XY_Plane, [""])
body.Tip = mirrored12
doc.recompute()

mirrored13 = doc.addObject("PartDesign::Mirrored", "Mirrored012")
body.addObject(mirrored13)
mirrored13.Originals = [pocket9]
mirrored13.MirrorPlane = (doc.XY_Plane, [""])
body.Tip = mirrored13

# Sketch on XZ plane
sketch20 = doc.addObject("Sketcher::SketchObject", "Sketch019")
body.addObject(sketch20)
sketch20.AttachmentSupport = (doc.XZ_Plane, [""])
sketch20.MapMode = "FlatFace"
sketch20.AttachmentOffset = App.Placement(Vector(0, 0, -102.5), App.Rotation())
add_polygon(sketch20, [(-62, -62), (-62, 62), (62, 62), (62, -62)])  # lines 0-3
sketch20.addConstraint(Sketcher.Constraint("Vertical", 0))
sketch20.addConstraint(Sketcher.Constraint("Horizontal", 1))
sketch20.addConstraint(Sketcher.Constraint("Vertical", 2))
sketch20.addConstraint(Sketcher.Constraint("Horizontal", 3))
sketch20.addConstraint(Sketcher.Constraint("Symmetric", 0, 2, 2, 2, -1, 1))
sketch20.addConstraint(Sketcher.Constraint("Equal", 3, 0))
sketch20.addConstraint(Sketcher.Constraint("DistanceX", 1, 1, 1, 2, Q("125 mm")))
pad11 = doc.addObject("PartDesign::Pad", "Pad010")
body.addObject(pad11)
pad11.Profile = sketch20
pad11.Length = 2.5
pad11.Reversed = True

# Sketch on YZ plane
sketch21 = doc.addObject("Sketcher::SketchObject", "Sketch020")
body.addObject(sketch21)
sketch21.AttachmentSupport = (doc.YZ_Plane, [""])
sketch21.MapMode = "FlatFace"
sketch21.AttachmentOffset = App.Placement(Vector(0, 0, -62.5), App.Rotation())
add_polygon(sketch21, [(105, -62), (95, -62), (95, -52), (105, -52)])  # lines 0-3
sketch21.addConstraint(Sketcher.Constraint("Horizontal", 0))
sketch21.addConstraint(Sketcher.Constraint("Vertical", 1))
sketch21.addConstraint(Sketcher.Constraint("Horizontal", 2))
sketch21.addConstraint(Sketcher.Constraint("Vertical", 3))
sketch21.addConstraint(Sketcher.Constraint("Equal", 2, 1))
sketch21.addConstraint(Sketcher.Constraint("DistanceX", 0, 2, 0, 1, Q("10 mm")))
sketch21.addConstraint(Sketcher.Constraint("DistanceX", -1, 1, 0, 2, Q("95 mm")))
sketch21.addConstraint(Sketcher.Constraint("DistanceY", 0, 2, -1, 1, Q("62.5 mm")))
pad12 = doc.addObject("PartDesign::Pad", "Pad011")
body.addObject(pad12)
pad12.Profile = sketch21
pad12.Length = 2.5
doc.recompute()

mirrored14 = doc.addObject("PartDesign::Mirrored", "Mirrored013")
body.addObject(mirrored14)
mirrored14.Originals = [pad12]
mirrored14.MirrorPlane = (doc.XY_Plane, [""])
body.Tip = mirrored14

# Sketch on YZ plane
sketch22 = doc.addObject("Sketcher::SketchObject", "Sketch021")
body.addObject(sketch22)
sketch22.AttachmentSupport = (doc.YZ_Plane, [""])
sketch22.MapMode = "FlatFace"
sketch22.AttachmentOffset = App.Placement(Vector(0, 0, -62.5), App.Rotation())
add_polygon(sketch22, [(10, -62), (0, -62), (0, -52), (10, -52)])  # lines 0-3
sketch22.addConstraint(Sketcher.Constraint("Horizontal", 0))
sketch22.addConstraint(Sketcher.Constraint("Vertical", 1))
sketch22.addConstraint(Sketcher.Constraint("Horizontal", 2))
sketch22.addConstraint(Sketcher.Constraint("Vertical", 3))
sketch22.addConstraint(Sketcher.Constraint("PointOnObject", 0, 2, -2))
sketch22.addConstraint(Sketcher.Constraint("Equal", 2, 1))
sketch22.addConstraint(Sketcher.Constraint("DistanceX", 0, 2, 0, 1, Q("10 mm")))
sketch22.addConstraint(Sketcher.Constraint("DistanceY", 0, 2, -1, 1, Q("62.5 mm")))
pad13 = doc.addObject("PartDesign::Pad", "Pad012")
body.addObject(pad13)
pad13.Profile = sketch22
pad13.Length = 2.5
doc.recompute()

mirrored15 = doc.addObject("PartDesign::Mirrored", "Mirrored014")
body.addObject(mirrored15)
mirrored15.Originals = [pad13]
mirrored15.MirrorPlane = (doc.XY_Plane, [""])
body.Tip = mirrored15

# Sketch on YZ plane
sketch23 = doc.addObject("Sketcher::SketchObject", "Sketch022")
body.addObject(sketch23)
sketch23.AttachmentSupport = (doc.YZ_Plane, [""])
sketch23.MapMode = "FlatFace"
sketch23.AttachmentOffset = App.Placement(Vector(0, 0, -62.5), App.Rotation())
sketch23.addGeometry(Part.Circle(Vector(99, -56.5, 0), Vector(0, 0, 1), 1.5), False)
sketch23.addConstraint(Sketcher.Constraint("Diameter", 0, Q("3 mm")))
sketch23.addConstraint(Sketcher.Constraint("DistanceX", -1, 1, 0, 3, Q("99 mm")))
sketch23.addConstraint(Sketcher.Constraint("DistanceY", 0, 3, -1, 1, Q("56.5 mm")))
pocket10 = doc.addObject("PartDesign::Pocket", "Pocket009")
body.addObject(pocket10)
pocket10.Profile = sketch23
pocket10.Length = 2.5
pocket10.Reversed = True
doc.recompute()

mirrored16 = doc.addObject("PartDesign::Mirrored", "Mirrored015")
body.addObject(mirrored16)
mirrored16.Originals = [pocket10]
mirrored16.MirrorPlane = (doc.XY_Plane, [""])
body.Tip = mirrored16

# Sketch on YZ plane
sketch24 = doc.addObject("Sketcher::SketchObject", "Sketch023")
body.addObject(sketch24)
sketch24.AttachmentSupport = (doc.YZ_Plane, [""])
sketch24.MapMode = "FlatFace"
sketch24.AttachmentOffset = App.Placement(Vector(0, 0, -62.5), App.Rotation())
sketch24.addGeometry(Part.Circle(Vector(6, -56.5, 0), Vector(0, 0, 1), 1.5), False)
sketch24.addConstraint(Sketcher.Constraint("Diameter", 0, Q("3 mm")))
sketch24.addConstraint(Sketcher.Constraint("DistanceX", -1, 1, 0, 3, Q("6 mm")))
sketch24.addConstraint(Sketcher.Constraint("DistanceY", 0, 3, -1, 1, Q("56.5 mm")))
pocket11 = doc.addObject("PartDesign::Pocket", "Pocket010")
body.addObject(pocket11)
pocket11.Profile = sketch24
pocket11.Length = 2.5
pocket11.Reversed = True
doc.recompute()

mirrored17 = doc.addObject("PartDesign::Mirrored", "Mirrored016")
body.addObject(mirrored17)
mirrored17.Originals = [pocket11]
mirrored17.MirrorPlane = (doc.XY_Plane, [""])
body.Tip = mirrored17

# Sketch on YZ plane
sketch25 = doc.addObject("Sketcher::SketchObject", "Sketch024")
body.addObject(sketch25)
sketch25.AttachmentSupport = (doc.YZ_Plane, [""])
sketch25.MapMode = "FlatFace"
sketch25.AttachmentOffset = App.Placement(Vector(0, 0, 62.5), App.Rotation())
sketch25.addGeometry(Part.Circle(Vector(7, -35, 0), Vector(0, 0, 1), 1.8), False)
sketch25.addConstraint(Sketcher.Constraint("Diameter", 0, Q("3.5 mm")))
sketch25.addConstraint(Sketcher.Constraint("DistanceX", -1, 1, 0, 3, Q("7 mm")))
sketch25.addConstraint(Sketcher.Constraint("DistanceY", 0, 3, -1, 1, Q("35 mm")))
pocket12 = doc.addObject("PartDesign::Pocket", "Pocket011")
body.addObject(pocket12)
pocket12.Profile = sketch25
pocket12.Length = 10

# Sketch on YZ plane
sketch26 = doc.addObject("Sketcher::SketchObject", "Sketch025")
body.addObject(sketch26)
sketch26.AttachmentSupport = (doc.YZ_Plane, [""])
sketch26.MapMode = "FlatFace"
sketch26.AttachmentOffset = App.Placement(Vector(0, 0, 62.5), App.Rotation())
sketch26.addGeometry(Part.Circle(Vector(7, -25, 0), Vector(0, 0, 1), 1.8), False)
sketch26.addConstraint(Sketcher.Constraint("Diameter", 0, Q("3.5 mm")))
sketch26.addConstraint(Sketcher.Constraint("DistanceX", -1, 1, 0, 3, Q("7 mm")))
sketch26.addConstraint(Sketcher.Constraint("DistanceY", 0, 3, -1, 1, Q("25 mm")))
pocket13 = doc.addObject("PartDesign::Pocket", "Pocket012")
body.addObject(pocket13)
pocket13.Profile = sketch26
pocket13.Length = 10

# Sketch on YZ plane
sketch27 = doc.addObject("Sketcher::SketchObject", "Sketch026")
body.addObject(sketch27)
sketch27.AttachmentSupport = (doc.YZ_Plane, [""])
sketch27.MapMode = "FlatFace"
sketch27.AttachmentOffset = App.Placement(Vector(0, 0, 62.5), App.Rotation())
sketch27.addGeometry(Part.Circle(Vector(7, -45, 0), Vector(0, 0, 1), 1.8), False)
sketch27.addConstraint(Sketcher.Constraint("Diameter", 0, Q("3.5 mm")))
sketch27.addConstraint(Sketcher.Constraint("DistanceX", -1, 1, 0, 3, Q("7 mm")))
sketch27.addConstraint(Sketcher.Constraint("DistanceY", 0, 3, -1, 1, Q("45 mm")))
pocket14 = doc.addObject("PartDesign::Pocket", "Pocket013")
body.addObject(pocket14)
pocket14.Profile = sketch27
pocket14.Length = 10
doc.recompute()

fillet = doc.addObject("PartDesign::Fillet", "Fillet")
body.addObject(fillet)
fillet.Base = (pocket14, edges_at(pocket14, [(0, 105, 62.5)]))
fillet.Radius = 5
doc.recompute()

fillet2 = doc.addObject("PartDesign::Fillet", "Fillet001")
body.addObject(fillet2)
fillet2.Base = (fillet, edges_at(fillet, [(0, 105, -62.5)]))
fillet2.Radius = 5

# Sketch on YZ plane
sketch28 = doc.addObject("Sketcher::SketchObject", "Sketch027")
body.addObject(sketch28)
sketch28.AttachmentSupport = (doc.YZ_Plane, [""])
sketch28.MapMode = "FlatFace"
sketch28.AttachmentOffset = App.Placement(Vector(0, 0, 62.5), App.Rotation())
sketch28.addGeometry(Part.Circle(Vector(7, -55, 0), Vector(0, 0, 1), 3.8), False)
sketch28.addConstraint(Sketcher.Constraint("Diameter", 0, Q("7.5 mm")))
sketch28.addConstraint(Sketcher.Constraint("DistanceX", -1, 1, 0, 3, Q("7 mm")))
sketch28.addConstraint(Sketcher.Constraint("DistanceY", 0, 3, -1, 1, Q("55 mm")))
pocket15 = doc.addObject("PartDesign::Pocket", "Pocket014")
body.addObject(pocket15)
pocket15.Profile = sketch28
pocket15.Length = 10

doc.recompute()
